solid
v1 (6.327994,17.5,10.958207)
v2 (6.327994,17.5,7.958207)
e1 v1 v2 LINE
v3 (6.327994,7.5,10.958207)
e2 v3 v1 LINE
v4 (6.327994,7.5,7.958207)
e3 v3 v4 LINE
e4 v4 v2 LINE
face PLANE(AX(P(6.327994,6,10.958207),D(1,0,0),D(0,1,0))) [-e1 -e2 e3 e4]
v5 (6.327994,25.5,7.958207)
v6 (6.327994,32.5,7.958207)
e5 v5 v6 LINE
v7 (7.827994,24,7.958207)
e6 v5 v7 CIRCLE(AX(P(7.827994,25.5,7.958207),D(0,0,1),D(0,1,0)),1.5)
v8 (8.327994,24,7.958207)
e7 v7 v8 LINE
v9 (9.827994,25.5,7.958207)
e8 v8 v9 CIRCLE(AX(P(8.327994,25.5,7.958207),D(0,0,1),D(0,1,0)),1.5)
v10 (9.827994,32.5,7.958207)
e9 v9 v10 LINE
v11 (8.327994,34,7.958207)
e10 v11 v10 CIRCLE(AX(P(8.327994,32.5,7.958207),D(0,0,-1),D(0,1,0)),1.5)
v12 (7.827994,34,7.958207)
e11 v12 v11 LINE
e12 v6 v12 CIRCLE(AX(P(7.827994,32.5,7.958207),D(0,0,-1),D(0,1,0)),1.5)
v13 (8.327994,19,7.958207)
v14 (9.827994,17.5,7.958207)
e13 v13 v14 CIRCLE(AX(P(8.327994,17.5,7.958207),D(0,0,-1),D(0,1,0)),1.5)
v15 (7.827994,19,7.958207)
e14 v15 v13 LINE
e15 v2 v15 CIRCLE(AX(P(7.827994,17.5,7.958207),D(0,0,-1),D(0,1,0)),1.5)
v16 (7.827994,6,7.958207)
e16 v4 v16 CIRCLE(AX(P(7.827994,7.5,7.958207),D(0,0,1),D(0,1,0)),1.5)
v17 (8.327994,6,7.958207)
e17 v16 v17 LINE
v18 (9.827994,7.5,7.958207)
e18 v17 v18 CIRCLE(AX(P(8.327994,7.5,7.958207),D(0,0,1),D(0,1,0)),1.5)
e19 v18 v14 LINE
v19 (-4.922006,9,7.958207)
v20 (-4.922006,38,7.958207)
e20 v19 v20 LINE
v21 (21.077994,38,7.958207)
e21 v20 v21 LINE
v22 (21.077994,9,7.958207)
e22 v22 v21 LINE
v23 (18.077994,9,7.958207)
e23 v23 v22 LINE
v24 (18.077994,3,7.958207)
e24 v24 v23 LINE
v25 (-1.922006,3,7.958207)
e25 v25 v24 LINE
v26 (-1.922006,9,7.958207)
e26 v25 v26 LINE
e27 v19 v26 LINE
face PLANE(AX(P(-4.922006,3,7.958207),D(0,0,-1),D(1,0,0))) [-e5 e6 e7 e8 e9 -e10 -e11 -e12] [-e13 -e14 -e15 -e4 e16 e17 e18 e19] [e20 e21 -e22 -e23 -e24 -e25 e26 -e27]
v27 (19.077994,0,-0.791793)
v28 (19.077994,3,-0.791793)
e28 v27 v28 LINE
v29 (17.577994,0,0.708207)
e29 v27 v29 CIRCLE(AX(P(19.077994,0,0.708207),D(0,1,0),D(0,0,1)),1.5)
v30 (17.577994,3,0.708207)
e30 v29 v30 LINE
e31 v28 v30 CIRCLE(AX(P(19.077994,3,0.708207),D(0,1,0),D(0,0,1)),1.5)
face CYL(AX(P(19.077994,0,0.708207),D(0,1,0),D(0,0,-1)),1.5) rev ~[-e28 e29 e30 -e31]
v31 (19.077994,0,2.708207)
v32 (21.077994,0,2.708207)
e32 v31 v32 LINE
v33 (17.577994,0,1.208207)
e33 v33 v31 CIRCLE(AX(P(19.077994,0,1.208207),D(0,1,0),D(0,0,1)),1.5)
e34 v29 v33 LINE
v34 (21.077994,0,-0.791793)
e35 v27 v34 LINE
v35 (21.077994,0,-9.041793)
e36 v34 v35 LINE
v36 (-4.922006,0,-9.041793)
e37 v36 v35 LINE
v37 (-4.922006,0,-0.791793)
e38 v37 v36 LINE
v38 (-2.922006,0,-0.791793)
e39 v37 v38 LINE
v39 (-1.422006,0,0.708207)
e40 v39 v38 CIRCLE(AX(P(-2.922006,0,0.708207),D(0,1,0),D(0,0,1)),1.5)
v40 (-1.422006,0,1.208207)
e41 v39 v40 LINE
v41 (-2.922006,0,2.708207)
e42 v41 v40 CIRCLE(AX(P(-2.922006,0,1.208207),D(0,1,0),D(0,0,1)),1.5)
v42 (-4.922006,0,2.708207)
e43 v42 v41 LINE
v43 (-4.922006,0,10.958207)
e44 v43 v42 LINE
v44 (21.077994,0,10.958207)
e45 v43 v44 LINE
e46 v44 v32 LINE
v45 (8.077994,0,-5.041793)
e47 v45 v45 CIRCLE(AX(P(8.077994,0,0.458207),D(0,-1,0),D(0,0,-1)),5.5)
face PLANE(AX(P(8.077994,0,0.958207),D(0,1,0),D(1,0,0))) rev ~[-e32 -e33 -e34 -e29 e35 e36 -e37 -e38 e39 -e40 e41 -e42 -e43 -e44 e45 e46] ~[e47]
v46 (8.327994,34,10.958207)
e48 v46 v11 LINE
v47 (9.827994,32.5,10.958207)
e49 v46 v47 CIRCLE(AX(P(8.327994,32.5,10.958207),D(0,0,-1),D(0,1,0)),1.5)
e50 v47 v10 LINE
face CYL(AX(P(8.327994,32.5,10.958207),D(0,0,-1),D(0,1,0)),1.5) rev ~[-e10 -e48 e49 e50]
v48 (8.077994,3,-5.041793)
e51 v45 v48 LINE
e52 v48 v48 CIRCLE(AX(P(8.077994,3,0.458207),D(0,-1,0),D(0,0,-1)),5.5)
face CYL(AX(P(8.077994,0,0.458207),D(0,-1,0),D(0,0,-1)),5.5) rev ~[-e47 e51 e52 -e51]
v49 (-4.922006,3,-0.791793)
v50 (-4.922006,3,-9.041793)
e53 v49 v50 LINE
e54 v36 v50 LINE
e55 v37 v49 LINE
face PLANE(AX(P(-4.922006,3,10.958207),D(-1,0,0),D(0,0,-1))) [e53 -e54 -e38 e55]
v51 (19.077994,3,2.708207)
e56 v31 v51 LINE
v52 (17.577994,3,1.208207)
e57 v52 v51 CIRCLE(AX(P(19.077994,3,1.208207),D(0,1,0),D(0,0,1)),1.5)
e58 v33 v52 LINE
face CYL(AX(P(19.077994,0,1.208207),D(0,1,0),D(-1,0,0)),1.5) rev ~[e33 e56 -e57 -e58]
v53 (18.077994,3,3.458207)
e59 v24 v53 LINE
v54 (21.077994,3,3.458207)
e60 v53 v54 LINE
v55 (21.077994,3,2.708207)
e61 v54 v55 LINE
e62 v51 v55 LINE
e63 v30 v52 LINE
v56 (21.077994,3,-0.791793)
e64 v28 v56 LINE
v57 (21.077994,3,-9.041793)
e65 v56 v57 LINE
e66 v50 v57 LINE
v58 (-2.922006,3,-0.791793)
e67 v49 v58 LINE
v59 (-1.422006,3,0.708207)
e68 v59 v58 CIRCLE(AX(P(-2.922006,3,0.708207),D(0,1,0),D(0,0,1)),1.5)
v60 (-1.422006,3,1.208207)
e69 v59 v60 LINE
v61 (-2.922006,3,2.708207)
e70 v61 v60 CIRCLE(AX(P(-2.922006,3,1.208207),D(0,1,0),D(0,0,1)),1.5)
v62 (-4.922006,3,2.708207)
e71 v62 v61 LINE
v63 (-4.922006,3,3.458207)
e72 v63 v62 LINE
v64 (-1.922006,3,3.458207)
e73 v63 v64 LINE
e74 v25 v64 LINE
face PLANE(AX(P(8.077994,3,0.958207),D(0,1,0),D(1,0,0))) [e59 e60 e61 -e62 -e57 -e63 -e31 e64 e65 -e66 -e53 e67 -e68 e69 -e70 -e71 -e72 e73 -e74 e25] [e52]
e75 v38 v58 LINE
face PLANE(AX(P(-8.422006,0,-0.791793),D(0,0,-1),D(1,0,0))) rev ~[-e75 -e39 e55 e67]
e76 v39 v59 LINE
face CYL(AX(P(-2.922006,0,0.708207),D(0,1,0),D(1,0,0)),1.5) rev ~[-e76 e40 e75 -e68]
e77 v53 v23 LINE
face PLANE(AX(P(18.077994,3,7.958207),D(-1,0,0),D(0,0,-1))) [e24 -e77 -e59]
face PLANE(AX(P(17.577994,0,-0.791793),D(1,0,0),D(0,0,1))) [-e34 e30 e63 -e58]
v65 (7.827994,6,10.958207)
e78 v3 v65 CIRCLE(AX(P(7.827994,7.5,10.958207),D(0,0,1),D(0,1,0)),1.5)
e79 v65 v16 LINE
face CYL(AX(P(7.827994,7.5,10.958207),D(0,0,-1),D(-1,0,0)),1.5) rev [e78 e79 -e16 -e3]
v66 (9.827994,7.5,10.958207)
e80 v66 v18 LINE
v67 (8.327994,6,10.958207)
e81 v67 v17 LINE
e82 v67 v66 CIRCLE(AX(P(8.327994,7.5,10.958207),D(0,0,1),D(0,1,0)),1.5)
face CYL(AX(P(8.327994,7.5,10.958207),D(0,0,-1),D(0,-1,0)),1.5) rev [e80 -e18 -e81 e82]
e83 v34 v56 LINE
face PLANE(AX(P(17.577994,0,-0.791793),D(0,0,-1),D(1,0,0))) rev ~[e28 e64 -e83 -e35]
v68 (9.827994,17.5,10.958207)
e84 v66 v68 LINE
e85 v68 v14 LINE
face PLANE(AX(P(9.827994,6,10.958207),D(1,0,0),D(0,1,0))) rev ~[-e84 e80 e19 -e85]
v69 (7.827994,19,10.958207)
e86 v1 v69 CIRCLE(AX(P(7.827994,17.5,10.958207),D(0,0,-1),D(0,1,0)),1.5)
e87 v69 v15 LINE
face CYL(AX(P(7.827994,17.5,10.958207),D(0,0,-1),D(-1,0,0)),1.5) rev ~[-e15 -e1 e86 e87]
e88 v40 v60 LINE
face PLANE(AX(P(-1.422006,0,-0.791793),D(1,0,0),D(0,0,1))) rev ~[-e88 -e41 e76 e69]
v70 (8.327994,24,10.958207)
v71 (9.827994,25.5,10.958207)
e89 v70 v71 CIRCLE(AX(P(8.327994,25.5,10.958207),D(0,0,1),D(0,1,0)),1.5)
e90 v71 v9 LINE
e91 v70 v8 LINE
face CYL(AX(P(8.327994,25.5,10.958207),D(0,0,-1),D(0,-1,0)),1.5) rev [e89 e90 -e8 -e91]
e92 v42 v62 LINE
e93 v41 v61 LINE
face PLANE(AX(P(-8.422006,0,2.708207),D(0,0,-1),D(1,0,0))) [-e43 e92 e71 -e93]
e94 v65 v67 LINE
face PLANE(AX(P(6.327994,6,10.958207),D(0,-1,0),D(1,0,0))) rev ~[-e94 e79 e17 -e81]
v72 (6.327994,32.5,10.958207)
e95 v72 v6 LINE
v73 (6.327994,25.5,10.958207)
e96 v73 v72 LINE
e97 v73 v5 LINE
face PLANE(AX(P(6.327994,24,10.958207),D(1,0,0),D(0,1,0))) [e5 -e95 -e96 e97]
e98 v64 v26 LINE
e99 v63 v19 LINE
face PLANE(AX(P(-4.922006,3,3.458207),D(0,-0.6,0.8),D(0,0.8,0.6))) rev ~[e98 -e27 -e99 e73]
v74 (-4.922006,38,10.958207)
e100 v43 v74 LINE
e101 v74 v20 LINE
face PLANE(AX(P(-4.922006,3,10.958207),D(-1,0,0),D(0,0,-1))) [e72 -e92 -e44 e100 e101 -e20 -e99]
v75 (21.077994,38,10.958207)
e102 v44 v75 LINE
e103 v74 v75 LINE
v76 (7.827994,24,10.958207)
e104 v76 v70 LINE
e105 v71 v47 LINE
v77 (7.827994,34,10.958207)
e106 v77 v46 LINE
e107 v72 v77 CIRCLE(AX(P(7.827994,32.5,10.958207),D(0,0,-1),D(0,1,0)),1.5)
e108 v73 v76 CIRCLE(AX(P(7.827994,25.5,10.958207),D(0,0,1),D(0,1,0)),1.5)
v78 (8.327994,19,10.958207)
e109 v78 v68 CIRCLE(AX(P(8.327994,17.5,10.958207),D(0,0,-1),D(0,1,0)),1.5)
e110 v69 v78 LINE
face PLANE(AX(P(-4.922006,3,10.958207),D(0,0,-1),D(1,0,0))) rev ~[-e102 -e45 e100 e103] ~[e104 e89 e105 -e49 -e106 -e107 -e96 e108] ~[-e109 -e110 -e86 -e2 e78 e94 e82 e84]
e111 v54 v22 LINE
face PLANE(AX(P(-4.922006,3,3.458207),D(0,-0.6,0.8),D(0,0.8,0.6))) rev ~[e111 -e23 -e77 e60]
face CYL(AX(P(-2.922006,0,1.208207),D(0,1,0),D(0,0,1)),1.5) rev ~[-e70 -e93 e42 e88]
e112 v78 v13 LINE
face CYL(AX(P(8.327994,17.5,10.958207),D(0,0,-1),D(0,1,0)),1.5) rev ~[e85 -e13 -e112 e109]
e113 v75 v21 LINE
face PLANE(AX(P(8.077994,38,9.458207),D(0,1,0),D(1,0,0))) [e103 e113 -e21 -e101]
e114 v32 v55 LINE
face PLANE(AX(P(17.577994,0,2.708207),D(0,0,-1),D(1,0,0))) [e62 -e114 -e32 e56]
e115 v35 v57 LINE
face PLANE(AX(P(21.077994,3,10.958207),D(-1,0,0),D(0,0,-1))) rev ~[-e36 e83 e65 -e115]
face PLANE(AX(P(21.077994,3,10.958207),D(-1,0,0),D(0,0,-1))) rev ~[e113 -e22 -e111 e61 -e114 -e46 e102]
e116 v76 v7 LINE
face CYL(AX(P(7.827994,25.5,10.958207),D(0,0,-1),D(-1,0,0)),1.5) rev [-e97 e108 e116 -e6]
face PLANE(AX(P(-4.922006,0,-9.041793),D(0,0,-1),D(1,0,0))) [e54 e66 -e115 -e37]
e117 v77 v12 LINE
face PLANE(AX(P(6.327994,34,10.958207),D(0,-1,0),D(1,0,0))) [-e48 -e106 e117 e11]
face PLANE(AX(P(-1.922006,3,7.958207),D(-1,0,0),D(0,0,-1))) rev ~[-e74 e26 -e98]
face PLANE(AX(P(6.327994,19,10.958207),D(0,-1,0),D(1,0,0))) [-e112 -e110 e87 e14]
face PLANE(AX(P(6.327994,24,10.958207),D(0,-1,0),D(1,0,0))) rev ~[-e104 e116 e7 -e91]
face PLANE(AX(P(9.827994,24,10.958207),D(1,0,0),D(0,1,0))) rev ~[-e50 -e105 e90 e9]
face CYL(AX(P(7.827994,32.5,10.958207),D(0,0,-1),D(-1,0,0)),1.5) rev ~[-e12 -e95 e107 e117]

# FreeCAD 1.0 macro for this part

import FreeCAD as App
import Part
import Sketcher

V = App.Vector


def edges_at(feature, points):
    """Names of the edges that pass closest to the given points."""
    edges = feature.Shape.Edges
    near = lambda p: min(range(len(edges)), key=lambda i: edges[i].distToShape(Part.Vertex(*p))[0])
    return sorted({f"Edge{near(p) + 1}" for p in points})


def add_polygon(sketch, points):
    """Adds a closed chain of lines whose ends are joined by coincident constraints."""
    first, n = sketch.GeometryCount, len(points)
    for a, b in zip(points, points[1:] + points[:1]):
        sketch.addGeometry(Part.LineSegment(App.Vector(*a, 0), App.Vector(*b, 0)), False)
    for i in range(n):
        sketch.addConstraint(Sketcher.Constraint("Coincident", first + i, 2, first + (i + 1) % n, 1))

doc = App.newDocument("Part")
body = doc.addObject("PartDesign::Body", "Body")

# Sketch on XZ plane
sketch1 = body.newObject("Sketcher::SketchObject", "Sketch")
sketch1.AttachmentSupport = (doc.getObject("XZ_Plane"), [""])
sketch1.MapMode = "FlatFace"
add_polygon(sketch1, [(-5, -9), (-5, 11), (21, 11), (21, -9)])  # lines 0-3
sketch1.addConstraint([
    Sketcher.Constraint("Vertical", 0),
    Sketcher.Constraint("Horizontal", 1),
    Sketcher.Constraint("Vertical", 2),
    Sketcher.Constraint("Horizontal", 3),
    Sketcher.Constraint("DistanceX", 1, 1, 1, 2, 26.0),
    Sketcher.Constraint("DistanceY", 0, 1, 0, 2, 20.0),
    Sketcher.Constraint("DistanceX", 0, 2, -1, 1, 4.922006),
    Sketcher.Constraint("DistanceY", -1, 1, 0, 2, 10.958207),
])
pad1 = body.newObject("PartDesign::Pad", "Pad")
pad1.Profile = sketch1
pad1.Length = 3
pad1.Reversed = True

# Sketch on XZ plane
sketch2 = body.newObject("Sketcher::SketchObject", "Sketch001")
sketch2.AttachmentSupport = (doc.getObject("XZ_Plane"), [""])
sketch2.MapMode = "FlatFace"
sketch2.AttachmentOffset = App.Placement(V(0, 0, -3), App.Rotation())
add_polygon(sketch2, [(-4.9, 8), (-4.9, 11), (21.1, 11), (21.1, 8)])  # lines 0-3
sketch2.addConstraint([
    Sketcher.Constraint("Vertical", 0),
    Sketcher.Constraint("Horizontal", 1),
    Sketcher.Constraint("Vertical", 2),
    Sketcher.Constraint("Horizontal", 3),
    Sketcher.Constraint("DistanceX", 1, 1, 1, 2, 26.0),
    Sketcher.Constraint("DistanceY", 0, 1, 0, 2, 3.0),
    Sketcher.Constraint("DistanceX", 0, 2, -1, 1, 4.922006),
    Sketcher.Constraint("DistanceY", -1, 1, 0, 2, 10.958207),
])
pad2 = body.newObject("PartDesign::Pad", "Pad001")
pad2.Profile = sketch2
pad2.Length = 35
pad2.Reversed = True

# Sketch on XZ plane
sketch3 = body.newObject("Sketcher::SketchObject", "Sketch002")
sketch3.AttachmentSupport = (doc.getObject("XZ_Plane"), [""])
sketch3.MapMode = "FlatFace"
sketch3.AttachmentOffset = App.Placement(V(0, 0, -3), App.Rotation())
add_polygon(sketch3, [(18.1, 3.5), (18.1, 8), (21.1, 8), (21.1, 3.5)])  # lines 0-3
add_polygon(sketch3, [(-4.9, 3.5), (-4.9, 8), (-1.9, 8), (-1.9, 3.5)])  # lines 4-7
sketch3.addConstraint([
    Sketcher.Constraint("Vertical", 0),
    Sketcher.Constraint("Horizontal", 1),
    Sketcher.Constraint("Vertical", 2),
    Sketcher.Constraint("Horizontal", 3),
    Sketcher.Constraint("Vertical", 4),
    Sketcher.Constraint("Horizontal", 5),
    Sketcher.Constraint("Vertical", 6),
    Sketcher.Constraint("Horizontal", 7),
    Sketcher.Constraint("Horizontal", 1, 2, 4, 2),
    Sketcher.Constraint("Horizontal", 3, 2, 6, 2),
    Sketcher.Constraint("Equal", 3, 5),
    Sketcher.Constraint("DistanceX", 1, 1, 1, 2, 3.0),
    Sketcher.Constraint("DistanceY", 0, 1, 0, 2, 4.5),
    Sketcher.Constraint("DistanceX", 4, 2, 0, 2, 23.0),
    Sketcher.Constraint("DistanceX", -1, 1, 0, 2, 18.077994),
    Sketcher.Constraint("DistanceY", -1, 1, 0, 2, 7.958207),
])
pad3 = body.newObject("PartDesign::Pad", "Pad002")
pad3.Profile = sketch3
pad3.Length = 6
pad3.Reversed = True

# Sketch on YZ plane
sketch4 = body.newObject("Sketcher::SketchObject", "Sketch003")
sketch4.AttachmentSupport = (doc.getObject("YZ_Plane"), [""])
sketch4.MapMode = "FlatFace"
sketch4.AttachmentOffset = App.Placement(V(0, 0, -4.922006), App.Rotation())
add_polygon(sketch4, [(3, 3.5), (9, 8), (9, 3.5)])  # lines 0-2
sketch4.addConstraint([
    Sketcher.Constraint("Vertical", 1),
    Sketcher.Constraint("Horizontal", 2),
    Sketcher.Constraint("DistanceX", 2, 2, 2, 1, 6.0),
    Sketcher.Constraint("DistanceY", 1, 2, 1, 1, 4.5),
    Sketcher.Constraint("DistanceX", -1, 1, 0, 2, 9.0),
    Sketcher.Constraint("DistanceY", -1, 1, 0, 2, 7.958207),
])
pocket1 = body.newObject("PartDesign::Pocket", "Pocket")
pocket1.Profile = sketch4
pocket1.Type = "ThroughAll"
pocket1.Reversed = True

# Sketch on XY plane
sketch5 = body.newObject("Sketcher::SketchObject", "Sketch004")
sketch5.AttachmentSupport = (doc.getObject("XY_Plane"), [""])
sketch5.MapMode = "FlatFace"
sketch5.AttachmentOffset = App.Placement(V(0, 0, 10.958207), App.Rotation())
add_polygon(sketch5, [(6.3, 34), (6.3, 24), (9.8, 24), (9.8, 34)])  # lines 0-3
sketch5.addConstraint([
    Sketcher.Constraint("Vertical", 0),
    Sketcher.Constraint("Horizontal", 1),
    Sketcher.Constraint("Vertical", 2),
    Sketcher.Constraint("Horizontal", 3),
    Sketcher.Constraint("DistanceY", 0, 2, 0, 1, 10.0),
    Sketcher.Constraint("DistanceX", 1, 1, 1, 2, 3.5),
    Sketcher.Constraint("DistanceY", -1, 1, 0, 2, 24.0),
    Sketcher.Constraint("DistanceX", -1, 1, 0, 2, 6.327994),
])
pocket2 = body.newObject("PartDesign::Pocket", "Pocket001")
pocket2.Profile = sketch5
pocket2.Type = "UpToFirst"

# Sketch on XY plane
sketch6 = body.newObject("Sketcher::SketchObject", "Sketch005")
sketch6.AttachmentSupport = (doc.getObject("XY_Plane"), [""])
sketch6.MapMode = "FlatFace"
sketch6.AttachmentOffset = App.Placement(V(0, 0, 10.958207), App.Rotation())
add_polygon(sketch6, [(6.3, 19), (6.3, 6), (9.8, 6), (9.8, 19)])  # lines 0-3
sketch6.addConstraint([
    Sketcher.Constraint("Vertical", 0),
    Sketcher.Constraint("Horizontal", 1),
    Sketcher.Constraint("Vertical", 2),
    Sketcher.Constraint("Horizontal", 3),
    Sketcher.Constraint("DistanceY", 0, 2, 0, 1, 13.0),
    Sketcher.Constraint("DistanceX", 1, 1, 1, 2, 3.5),
    Sketcher.Constraint("DistanceY", -1, 1, 0, 2, 6.0),
    Sketcher.Constraint("DistanceX", -1, 1, 0, 2, 6.327994),
])
pocket3 = body.newObject("PartDesign::Pocket", "Pocket002")
pocket3.Profile = sketch6
pocket3.Type = "UpToFirst"
doc.recompute()

fillet = body.newObject("PartDesign::Fillet", "Fillet")
fillet.Base = (pocket3, edges_at(pocket3, [
    (6.328, 34, 9.458),
    (9.828, 34, 9.458),
    (9.828, 24, 9.458),
    (6.328, 24, 9.458),
    (6.328, 19, 9.458),
    (9.828, 19, 9.458),
]))
fillet.Radius = 1.5
doc.recompute()

fillet2 = body.newObject("PartDesign::Fillet", "Fillet001")
fillet2.Base = (fillet, edges_at(fillet, [(6.328, 6, 9.458)]))
fillet2.Radius = 1.5
doc.recompute()

fillet3 = body.newObject("PartDesign::Fillet", "Fillet002")
fillet3.Base = (fillet2, edges_at(fillet2, [(9.828, 6, 9.458)]))
fillet3.Radius = 1.5

# Sketch on XZ plane
sketch7 = body.newObject("Sketcher::SketchObject", "Sketch006")
sketch7.AttachmentSupport = (doc.getObject("XZ_Plane"), [""])
sketch7.MapMode = "FlatFace"
add_polygon(sketch7, [(-8.4, 2.7), (-8.4, -0.8), (-1.4, -0.8), (-1.4, 2.7)])  # lines 0-3
sketch7.addConstraint([
    Sketcher.Constraint("Vertical", 0),
    Sketcher.Constraint("Horizontal", 1),
    Sketcher.Constraint("Vertical", 2),
    Sketcher.Constraint("Horizontal", 3),
    Sketcher.Constraint("DistanceX", 1, 1, 1, 2, 7.0),
    Sketcher.Constraint("DistanceY", 0, 2, 0, 1, 3.5),
    Sketcher.Constraint("DistanceX", 0, 2, -1, 1, 8.422006),
    Sketcher.Constraint("DistanceY", 0, 2, -1, 1, 0.791793),
])
pocket4 = body.newObject("PartDesign::Pocket", "Pocket003")
pocket4.Profile = sketch7
pocket4.Type = "UpToFirst"

# Sketch on XZ plane
sketch8 = body.newObject("Sketcher::SketchObject", "Sketch007")
sketch8.AttachmentSupport = (doc.getObject("XZ_Plane"), [""])
sketch8.MapMode = "FlatFace"
add_polygon(sketch8, [(17.6, 2.7), (17.6, -0.8), (24.6, -0.8), (24.6, 2.7)])  # lines 0-3
sketch8.addConstraint([
    Sketcher.Constraint("Vertical", 0),
    Sketcher.Constraint("Horizontal", 1),
    Sketcher.Constraint("Vertical", 2),
    Sketcher.Constraint("Horizontal", 3),
    Sketcher.Constraint("DistanceX", 1, 1, 1, 2, 7.0),
    Sketcher.Constraint("DistanceY", 0, 2, 0, 1, 3.5),
    Sketcher.Constraint("DistanceX", -1, 1, 0, 2, 17.577994),
    Sketcher.Constraint("DistanceY", 0, 2, -1, 1, 0.791793),
])
pocket5 = body.newObject("PartDesign::Pocket", "Pocket004")
pocket5.Profile = sketch8
pocket5.Type = "UpToFirst"
doc.recompute()

fillet4 = body.newObject("PartDesign::Fillet", "Fillet003")
fillet4.Base = (pocket5, edges_at(pocket5, [
    (-1.422, 1.5, 2.708),
    (-1.422, 1.5, -0.792),
    (17.578, 1.5, -0.792),
    (17.578, 1.5, 2.708),
]))
fillet4.Radius = 1.5

# Sketch on XZ plane
sketch9 = body.newObject("Sketcher::SketchObject", "Sketch008")
sketch9.AttachmentSupport = (doc.getObject("XZ_Plane"), [""])
sketch9.MapMode = "FlatFace"
sketch9.addGeometry(Part.Circle(V(8, 0, 0), V(0, 0, 1), 6), False)
sketch9.addConstraint([
    Sketcher.Constraint("Diameter", 0, 11.0),
    Sketcher.Constraint("DistanceX", -1, 1, 0, 3, 8.077994),
    Sketcher.Constraint("DistanceY", -1, 1, 0, 3, 0.458207),
])
pocket6 = body.newObject("PartDesign::Pocket", "Pocket005")
pocket6.Profile = sketch9
pocket6.Type = "UpToFirst"

doc.recompute()
